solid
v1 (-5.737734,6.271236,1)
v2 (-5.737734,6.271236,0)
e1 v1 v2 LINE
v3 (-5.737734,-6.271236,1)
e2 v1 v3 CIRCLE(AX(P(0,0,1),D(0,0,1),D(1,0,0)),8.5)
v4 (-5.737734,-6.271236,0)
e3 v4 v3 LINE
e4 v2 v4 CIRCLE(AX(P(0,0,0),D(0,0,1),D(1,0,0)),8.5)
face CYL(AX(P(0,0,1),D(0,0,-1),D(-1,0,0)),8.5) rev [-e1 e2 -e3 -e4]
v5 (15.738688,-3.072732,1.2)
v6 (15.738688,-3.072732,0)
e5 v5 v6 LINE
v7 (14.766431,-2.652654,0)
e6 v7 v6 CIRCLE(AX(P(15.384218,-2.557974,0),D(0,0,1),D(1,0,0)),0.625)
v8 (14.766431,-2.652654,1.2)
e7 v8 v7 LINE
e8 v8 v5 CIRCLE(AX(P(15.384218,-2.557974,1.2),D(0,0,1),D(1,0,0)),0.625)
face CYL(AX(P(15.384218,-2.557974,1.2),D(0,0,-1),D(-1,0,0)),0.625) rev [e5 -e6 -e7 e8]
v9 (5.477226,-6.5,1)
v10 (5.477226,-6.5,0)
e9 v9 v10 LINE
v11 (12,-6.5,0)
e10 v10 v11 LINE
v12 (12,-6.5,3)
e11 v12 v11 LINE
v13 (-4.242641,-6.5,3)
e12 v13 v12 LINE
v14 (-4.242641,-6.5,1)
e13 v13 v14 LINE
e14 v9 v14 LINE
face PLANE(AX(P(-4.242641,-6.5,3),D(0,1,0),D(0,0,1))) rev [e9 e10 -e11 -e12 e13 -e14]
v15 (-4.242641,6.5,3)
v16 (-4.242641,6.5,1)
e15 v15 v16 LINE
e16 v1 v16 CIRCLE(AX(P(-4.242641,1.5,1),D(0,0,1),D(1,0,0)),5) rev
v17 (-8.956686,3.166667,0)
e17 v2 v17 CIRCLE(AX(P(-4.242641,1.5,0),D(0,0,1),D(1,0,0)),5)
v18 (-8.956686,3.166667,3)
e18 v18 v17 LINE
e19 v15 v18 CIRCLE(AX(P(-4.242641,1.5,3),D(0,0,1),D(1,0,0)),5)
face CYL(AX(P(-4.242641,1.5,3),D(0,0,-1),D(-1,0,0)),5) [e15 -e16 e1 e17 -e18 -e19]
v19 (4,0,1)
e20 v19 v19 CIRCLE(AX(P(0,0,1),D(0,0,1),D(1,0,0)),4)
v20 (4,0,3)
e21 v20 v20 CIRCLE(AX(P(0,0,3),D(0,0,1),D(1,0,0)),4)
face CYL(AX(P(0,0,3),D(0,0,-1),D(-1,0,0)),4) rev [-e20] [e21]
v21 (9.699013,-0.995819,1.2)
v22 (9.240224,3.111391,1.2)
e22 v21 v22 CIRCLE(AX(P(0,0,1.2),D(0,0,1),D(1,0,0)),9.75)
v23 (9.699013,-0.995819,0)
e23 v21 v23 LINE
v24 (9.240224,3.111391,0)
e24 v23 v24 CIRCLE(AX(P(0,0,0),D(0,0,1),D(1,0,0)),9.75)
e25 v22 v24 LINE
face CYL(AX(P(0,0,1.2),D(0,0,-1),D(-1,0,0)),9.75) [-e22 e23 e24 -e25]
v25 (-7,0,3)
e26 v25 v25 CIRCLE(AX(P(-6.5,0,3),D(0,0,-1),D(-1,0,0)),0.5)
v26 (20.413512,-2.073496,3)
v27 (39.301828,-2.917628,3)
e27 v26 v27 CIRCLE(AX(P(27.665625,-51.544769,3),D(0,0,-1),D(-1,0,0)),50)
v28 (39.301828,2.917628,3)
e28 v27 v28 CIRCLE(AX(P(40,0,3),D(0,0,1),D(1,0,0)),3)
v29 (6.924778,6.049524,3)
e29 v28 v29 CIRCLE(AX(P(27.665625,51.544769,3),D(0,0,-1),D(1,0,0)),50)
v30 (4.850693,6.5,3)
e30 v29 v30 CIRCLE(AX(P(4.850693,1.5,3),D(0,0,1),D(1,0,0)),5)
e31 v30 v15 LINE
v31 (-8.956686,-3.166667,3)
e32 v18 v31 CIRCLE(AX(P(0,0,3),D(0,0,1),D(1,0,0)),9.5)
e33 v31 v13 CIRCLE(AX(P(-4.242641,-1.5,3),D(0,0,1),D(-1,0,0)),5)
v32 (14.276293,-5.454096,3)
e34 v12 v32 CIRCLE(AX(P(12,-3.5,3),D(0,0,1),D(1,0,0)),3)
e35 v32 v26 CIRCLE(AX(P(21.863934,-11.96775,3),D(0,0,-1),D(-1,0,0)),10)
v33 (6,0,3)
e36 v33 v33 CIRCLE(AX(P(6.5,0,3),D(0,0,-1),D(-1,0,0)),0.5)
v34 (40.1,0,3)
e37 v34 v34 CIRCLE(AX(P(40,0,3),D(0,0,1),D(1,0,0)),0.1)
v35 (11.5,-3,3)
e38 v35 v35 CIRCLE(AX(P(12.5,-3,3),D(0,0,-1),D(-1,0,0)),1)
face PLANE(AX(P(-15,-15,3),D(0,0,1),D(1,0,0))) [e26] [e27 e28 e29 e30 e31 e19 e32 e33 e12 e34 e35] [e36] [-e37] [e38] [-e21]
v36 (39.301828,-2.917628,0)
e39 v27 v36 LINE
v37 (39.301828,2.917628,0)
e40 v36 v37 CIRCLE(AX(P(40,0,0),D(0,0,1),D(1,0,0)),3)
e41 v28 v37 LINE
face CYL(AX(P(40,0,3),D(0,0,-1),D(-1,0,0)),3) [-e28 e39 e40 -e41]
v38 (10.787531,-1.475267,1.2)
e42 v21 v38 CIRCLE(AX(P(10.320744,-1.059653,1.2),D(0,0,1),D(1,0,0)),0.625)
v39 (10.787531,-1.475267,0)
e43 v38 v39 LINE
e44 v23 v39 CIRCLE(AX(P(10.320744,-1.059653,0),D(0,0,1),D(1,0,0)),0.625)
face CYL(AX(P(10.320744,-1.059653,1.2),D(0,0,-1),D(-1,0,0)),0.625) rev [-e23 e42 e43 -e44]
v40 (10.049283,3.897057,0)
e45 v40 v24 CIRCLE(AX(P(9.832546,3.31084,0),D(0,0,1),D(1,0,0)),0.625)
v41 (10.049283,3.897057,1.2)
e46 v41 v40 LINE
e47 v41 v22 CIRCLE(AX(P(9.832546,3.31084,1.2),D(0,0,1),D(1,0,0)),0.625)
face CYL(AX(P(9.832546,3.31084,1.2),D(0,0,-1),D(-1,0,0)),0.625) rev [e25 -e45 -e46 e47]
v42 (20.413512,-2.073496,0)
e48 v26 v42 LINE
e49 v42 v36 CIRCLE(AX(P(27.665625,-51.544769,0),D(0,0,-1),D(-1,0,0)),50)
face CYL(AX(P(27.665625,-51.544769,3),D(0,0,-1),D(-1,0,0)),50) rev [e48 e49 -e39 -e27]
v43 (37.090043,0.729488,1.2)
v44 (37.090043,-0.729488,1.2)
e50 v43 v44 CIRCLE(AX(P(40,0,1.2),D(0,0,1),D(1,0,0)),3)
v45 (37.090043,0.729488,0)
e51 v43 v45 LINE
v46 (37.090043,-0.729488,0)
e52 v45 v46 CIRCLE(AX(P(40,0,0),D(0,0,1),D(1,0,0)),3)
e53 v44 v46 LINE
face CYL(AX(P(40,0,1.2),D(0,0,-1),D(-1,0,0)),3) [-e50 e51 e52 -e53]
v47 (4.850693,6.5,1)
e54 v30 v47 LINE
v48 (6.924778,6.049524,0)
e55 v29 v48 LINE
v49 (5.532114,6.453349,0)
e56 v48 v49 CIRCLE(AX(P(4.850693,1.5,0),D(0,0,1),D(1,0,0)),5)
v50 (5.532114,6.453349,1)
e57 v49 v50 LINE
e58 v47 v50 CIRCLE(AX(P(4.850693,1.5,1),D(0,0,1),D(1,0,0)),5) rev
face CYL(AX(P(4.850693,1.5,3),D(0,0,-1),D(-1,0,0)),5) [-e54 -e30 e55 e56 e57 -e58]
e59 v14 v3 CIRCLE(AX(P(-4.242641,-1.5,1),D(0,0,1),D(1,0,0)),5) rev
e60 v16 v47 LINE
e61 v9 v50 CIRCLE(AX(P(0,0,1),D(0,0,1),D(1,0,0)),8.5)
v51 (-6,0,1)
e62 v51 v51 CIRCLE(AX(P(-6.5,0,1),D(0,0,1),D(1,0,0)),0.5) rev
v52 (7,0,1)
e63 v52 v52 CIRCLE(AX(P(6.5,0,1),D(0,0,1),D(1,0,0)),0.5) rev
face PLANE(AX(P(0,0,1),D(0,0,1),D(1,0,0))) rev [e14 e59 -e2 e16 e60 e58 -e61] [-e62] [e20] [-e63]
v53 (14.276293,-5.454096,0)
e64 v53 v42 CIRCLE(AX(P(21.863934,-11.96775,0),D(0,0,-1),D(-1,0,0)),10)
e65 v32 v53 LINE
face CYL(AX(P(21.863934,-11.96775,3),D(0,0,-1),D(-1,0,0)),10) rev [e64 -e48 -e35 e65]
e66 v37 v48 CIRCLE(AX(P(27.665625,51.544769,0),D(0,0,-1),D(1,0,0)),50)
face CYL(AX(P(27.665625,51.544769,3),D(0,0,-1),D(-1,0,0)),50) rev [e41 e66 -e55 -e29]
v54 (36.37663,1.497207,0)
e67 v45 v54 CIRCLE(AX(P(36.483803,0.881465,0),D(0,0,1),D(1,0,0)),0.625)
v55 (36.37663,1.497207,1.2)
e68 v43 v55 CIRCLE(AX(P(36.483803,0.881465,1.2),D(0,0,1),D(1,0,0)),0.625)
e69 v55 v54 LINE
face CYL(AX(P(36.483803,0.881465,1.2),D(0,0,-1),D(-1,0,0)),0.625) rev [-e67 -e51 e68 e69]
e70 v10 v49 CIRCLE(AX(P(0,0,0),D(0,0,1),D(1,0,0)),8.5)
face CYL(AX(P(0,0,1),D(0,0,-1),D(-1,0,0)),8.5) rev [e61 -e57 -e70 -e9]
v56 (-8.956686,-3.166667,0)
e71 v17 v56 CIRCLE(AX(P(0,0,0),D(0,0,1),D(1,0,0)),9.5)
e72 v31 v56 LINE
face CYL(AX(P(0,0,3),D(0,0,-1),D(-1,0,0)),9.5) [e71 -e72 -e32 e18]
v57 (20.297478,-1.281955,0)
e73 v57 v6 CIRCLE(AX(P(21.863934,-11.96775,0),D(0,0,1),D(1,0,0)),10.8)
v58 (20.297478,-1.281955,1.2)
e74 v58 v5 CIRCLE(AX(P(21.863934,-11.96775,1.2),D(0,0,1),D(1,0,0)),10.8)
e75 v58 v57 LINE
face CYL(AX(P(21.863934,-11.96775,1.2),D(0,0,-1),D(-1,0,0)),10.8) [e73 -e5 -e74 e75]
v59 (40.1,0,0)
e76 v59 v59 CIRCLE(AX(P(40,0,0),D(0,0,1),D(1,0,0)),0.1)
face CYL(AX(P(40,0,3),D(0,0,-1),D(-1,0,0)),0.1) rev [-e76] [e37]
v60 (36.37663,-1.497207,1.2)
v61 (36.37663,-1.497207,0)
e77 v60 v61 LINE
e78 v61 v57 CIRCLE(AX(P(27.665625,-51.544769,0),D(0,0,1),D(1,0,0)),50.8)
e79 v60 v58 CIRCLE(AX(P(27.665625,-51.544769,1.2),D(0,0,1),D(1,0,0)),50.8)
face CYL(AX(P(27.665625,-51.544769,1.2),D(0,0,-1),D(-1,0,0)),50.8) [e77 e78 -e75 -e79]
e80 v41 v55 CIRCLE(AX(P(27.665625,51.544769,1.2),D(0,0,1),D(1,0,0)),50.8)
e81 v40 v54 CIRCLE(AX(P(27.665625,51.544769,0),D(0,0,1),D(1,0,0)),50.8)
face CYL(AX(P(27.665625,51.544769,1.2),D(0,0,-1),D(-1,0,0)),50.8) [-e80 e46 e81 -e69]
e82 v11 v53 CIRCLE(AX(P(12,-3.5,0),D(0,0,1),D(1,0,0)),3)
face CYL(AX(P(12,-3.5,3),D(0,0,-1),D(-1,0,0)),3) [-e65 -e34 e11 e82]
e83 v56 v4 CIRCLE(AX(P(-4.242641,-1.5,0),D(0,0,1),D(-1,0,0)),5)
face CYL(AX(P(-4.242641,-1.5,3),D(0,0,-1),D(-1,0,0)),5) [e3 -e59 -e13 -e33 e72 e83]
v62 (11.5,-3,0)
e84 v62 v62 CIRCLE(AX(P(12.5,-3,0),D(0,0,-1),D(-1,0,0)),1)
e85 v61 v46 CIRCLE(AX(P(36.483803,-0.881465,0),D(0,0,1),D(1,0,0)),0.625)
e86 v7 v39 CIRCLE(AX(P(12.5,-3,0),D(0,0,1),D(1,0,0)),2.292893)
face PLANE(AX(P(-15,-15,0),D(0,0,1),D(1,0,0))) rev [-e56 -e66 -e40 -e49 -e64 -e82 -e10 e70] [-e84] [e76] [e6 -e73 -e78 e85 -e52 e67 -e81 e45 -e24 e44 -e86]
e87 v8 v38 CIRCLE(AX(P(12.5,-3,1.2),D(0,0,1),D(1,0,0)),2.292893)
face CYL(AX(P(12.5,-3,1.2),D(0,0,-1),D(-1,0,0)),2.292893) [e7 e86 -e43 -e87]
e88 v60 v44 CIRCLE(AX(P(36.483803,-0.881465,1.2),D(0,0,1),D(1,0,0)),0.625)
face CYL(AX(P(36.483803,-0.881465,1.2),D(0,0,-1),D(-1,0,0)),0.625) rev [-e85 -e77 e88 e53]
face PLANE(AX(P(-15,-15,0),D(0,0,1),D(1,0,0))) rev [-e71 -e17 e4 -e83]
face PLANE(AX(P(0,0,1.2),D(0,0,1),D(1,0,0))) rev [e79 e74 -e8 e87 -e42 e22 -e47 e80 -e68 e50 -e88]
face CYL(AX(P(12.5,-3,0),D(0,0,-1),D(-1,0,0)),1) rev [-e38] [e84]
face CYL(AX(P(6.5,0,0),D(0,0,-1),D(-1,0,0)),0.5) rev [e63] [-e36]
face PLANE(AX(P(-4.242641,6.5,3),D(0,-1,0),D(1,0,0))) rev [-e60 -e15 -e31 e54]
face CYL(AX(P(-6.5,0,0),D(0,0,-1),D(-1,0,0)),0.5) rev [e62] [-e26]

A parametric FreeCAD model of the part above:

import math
import FreeCAD as App
import Part
import Sketcher
from FreeCAD import Vector


def add_polygon(sketch, points):
    """Adds a closed chain of lines whose ends are joined by coincident constraints."""
    first, n = sketch.GeometryCount, len(points)
    for a, b in zip(points, points[1:] + points[:1]):
        sketch.addGeometry(Part.LineSegment(App.Vector(*a, 0), App.Vector(*b, 0)), False)
    for i in range(n):
        sketch.addConstraint(Sketcher.Constraint("Coincident", first + i, 2, first + (i + 1) % n, 1))

doc = App.newDocument("Part")
params = doc.addObject("Spreadsheet::Sheet", "Params")
for row, (alias, value) in enumerate([
    ("sketch1_diameter", "8 mm"),
    ("sketch1_diameter2", "0.2 mm"),
    ("sketch1_width", "70 mm"),
    ("sketch1_height", "30 mm"),
    ("pad1_length", "3 mm"),
    ("sketch2_diameter", "1 mm"),
    ("hole_diameter", "1 mm"),
    ("sketch3_diameter", "2 mm"),
    ("hole2_diameter", "2 mm"),
    ("sketch4_diameter", "17 mm"),
    ("pocket1_length", "1 mm"),
    ("sketch5_radius", "5 mm"),
    ("sketch5_radius2", "50 mm"),
    ("sketch5_radius3", "3 mm"),
    ("sketch5_radius4", "10 mm"),
    ("sketch5_radius5", "9.5 mm"),
    ("sketch6_radius", "3 mm"),
    ("sketch6_radius2", "10.8 mm"),
    ("sketch6_radius3", "50.8 mm"),
    ("sketch6_radius4", "50.8 mm"),
    ("sketch6_radius5", "9.75 mm"),
    ("pocket3_length", "1.2 mm"),
], start=1):
    params.set(f"A{row}", alias)
    params.set(f"B{row}", "=" + value)
    params.setAlias(f"B{row}", alias)

body = doc.addObject("PartDesign::Body", "Body")

# Sketch on XY plane
sketch1 = body.newObject("Sketcher::SketchObject", "Sketch")
sketch1.AttachmentSupport = (doc.getObject("XY_Plane"), [""])
sketch1.MapMode = "FlatFace"
add_polygon(sketch1, [(-15, 15), (-15, -15), (55, -15), (55, 15)])  # lines 0-3
sketch1.addGeometry(Part.Circle(Vector(0, 0, 0), Vector(0, 0, 1), 4), False)  # 4
sketch1.addGeometry(Part.Circle(Vector(40, 0, 0), Vector(0, 0, 1), 0.1), False)  # 5
sketch1.addConstraint([
    Sketcher.Constraint("Vertical", 0),
    Sketcher.Constraint("Horizontal", 1),
    Sketcher.Constraint("Vertical", 2),
    Sketcher.Constraint("Horizontal", 3),
    Sketcher.Constraint("Coincident", 4, 3, -1, 1),
    Sketcher.Constraint("PointOnObject", 5, 3, -1),
    Sketcher.Constraint("Diameter", 4, 8.0),
    Sketcher.Constraint("Diameter", 5, 0.2),
    Sketcher.Constraint("DistanceX", 1, 1, 1, 2, 70.0),
    Sketcher.Constraint("DistanceY", 0, 2, 0, 1, 30.0),
    Sketcher.Constraint("DistanceX", -1, 1, 5, 3, 40.0),
    Sketcher.Constraint("DistanceX", 0, 2, -1, 1, 15.0),
    Sketcher.Constraint("DistanceY", 0, 2, -1, 1, 15.0),
])
sketch1.setExpression("Constraints[10]", "Params.sketch1_diameter")
sketch1.setExpression("Constraints[11]", "Params.sketch1_diameter2")
sketch1.setExpression("Constraints[12]", "Params.sketch1_width")
sketch1.setExpression("Constraints[13]", "Params.sketch1_height")
pad1 = body.newObject("PartDesign::Pad", "Pad")
pad1.Profile = sketch1
pad1.setExpression("Length", "Params.pad1_length")

# Sketch on XY plane
sketch2 = body.newObject("Sketcher::SketchObject", "Sketch001")
sketch2.AttachmentSupport = (doc.getObject("XY_Plane"), [""])
sketch2.MapMode = "FlatFace"
sketch2.addGeometry([
    Part.Circle(Vector(-6.5, 0, 0), Vector(0, 0, 1), 0.5),
    Part.Circle(Vector(6.5, 0, 0), Vector(0, 0, 1), 0.5),
], False)
sketch2.addConstraint([
    Sketcher.Constraint("Equal", 0, 1),
    Sketcher.Constraint("Symmetric", 0, 3, 1, 3, -1, 1),
    Sketcher.Constraint("PointOnObject", 0, 3, -1),
    Sketcher.Constraint("Diameter", 0, 1.0),
    Sketcher.Constraint("DistanceX", 0, 3, 1, 3, 13.0),
])
sketch2.setExpression("Constraints[3]", "Params.sketch2_diameter")
doc.recompute()
hole = body.newObject("PartDesign::Hole", "Hole")
hole.Profile = sketch2
hole.ThreadType = "None"
hole.setExpression("Diameter", "Params.hole_diameter")
hole.DepthType = "ThroughAll"
hole.Reversed = True

# Sketch on XY plane
sketch3 = body.newObject("Sketcher::SketchObject", "Sketch002")
sketch3.AttachmentSupport = (doc.getObject("XY_Plane"), [""])
sketch3.MapMode = "FlatFace"
sketch3.addGeometry(Part.Circle(Vector(12.5, -3, 0), Vector(0, 0, 1), 1), False)
sketch3.addConstraint([
    Sketcher.Constraint("Diameter", 0, 2.0),
    Sketcher.Constraint("DistanceY", 0, 3, -1, 1, 3.0),
    Sketcher.Constraint("DistanceX", -1, 1, 0, 3, 12.5),
])
sketch3.setExpression("Constraints[0]", "Params.sketch3_diameter")
doc.recompute()
hole2 = body.newObject("PartDesign::Hole", "Hole001")
hole2.Profile = sketch3
hole2.ThreadType = "None"
hole2.setExpression("Diameter", "Params.hole2_diameter")
hole2.DepthType = "ThroughAll"
hole2.Reversed = True

# Sketch on XY plane
sketch4 = body.newObject("Sketcher::SketchObject", "Sketch003")
sketch4.AttachmentSupport = (doc.getObject("XY_Plane"), [""])
sketch4.MapMode = "FlatFace"
sketch4.addGeometry(Part.Circle(Vector(0, 0, 0), Vector(0, 0, 1), 8), False)
sketch4.addConstraint([
    Sketcher.Constraint("Coincident", 0, 3, -1, 1),
    Sketcher.Constraint("Diameter", 0, 17.0),
])
sketch4.setExpression("Constraints[1]", "Params.sketch4_diameter")
pocket1 = body.newObject("PartDesign::Pocket", "Pocket")
pocket1.Profile = sketch4
pocket1.setExpression("Length", "Params.pocket1_length")
pocket1.Reversed = True

# Sketch on XY plane
sketch5 = body.newObject("Sketcher::SketchObject", "Sketch004")
sketch5.AttachmentSupport = (doc.getObject("XY_Plane"), [""])
sketch5.MapMode = "FlatFace"
add_polygon(sketch5, [(-23.6, 23.6), (-23.6, -23.6), (63.6, -23.6), (63.6, 23.6)])  # lines 0-3
sketch5.addGeometry(Part.ArcOfCircle(Part.Circle(Vector(-4.2, 1.5, 0), Vector(0, 0, 1), 5), math.radians(90), math.radians(161)), False)  # 4
sketch5.addGeometry(Part.LineSegment(Vector(-4.2, 6.5, 0), Vector(4.9, 6.5, 0)), False)  # 5
sketch5.addGeometry(Part.ArcOfCircle(Part.Circle(Vector(4.9, 1.5, 0), Vector(0, 0, 1), 5), math.radians(65), math.radians(90)), False)  # 6
sketch5.addGeometry(Part.ArcOfCircle(Part.Circle(Vector(27.7, 51.5, 0), Vector(0, 0, 1), 50), math.radians(-115), math.radians(-77)), False)  # 7
sketch5.addGeometry(Part.ArcOfCircle(Part.Circle(Vector(40, 0, 0), Vector(0, 0, 1), 3), math.radians(-103), math.radians(103)), False)  # 8
sketch5.addGeometry(Part.ArcOfCircle(Part.Circle(Vector(27.7, -51.5, 0), Vector(0, 0, 1), 50), math.radians(77), math.radians(98)), False)  # 9
sketch5.addGeometry(Part.ArcOfCircle(Part.Circle(Vector(21.9, -12, 0), Vector(0, 0, 1), 10), math.radians(98), math.radians(139)), False)  # 10
sketch5.addGeometry(Part.ArcOfCircle(Part.Circle(Vector(12, -3.5, 0), Vector(0, 0, 1), 3), math.radians(-90), math.radians(-41)), False)  # 11
sketch5.addGeometry(Part.LineSegment(Vector(12, -6.5, 0), Vector(-4.2, -6.5, 0)), False)  # 12
sketch5.addGeometry(Part.ArcOfCircle(Part.Circle(Vector(-4.2, -1.5, 0), Vector(0, 0, 1), 5), math.radians(-161), math.radians(-90)), False)  # 13
sketch5.addGeometry(Part.ArcOfCircle(Part.Circle(Vector(0, 0, 0), Vector(0, 0, 1), 9.5), math.radians(161), math.radians(199)), False)  # 14
sketch5.addConstraint([
    Sketcher.Constraint("Tangent", 4, 1, 5, 1),
    Sketcher.Constraint("Tangent", 5, 2, 6, 2),
    Sketcher.Constraint("Tangent", 6, 1, 7, 1),
    Sketcher.Constraint("Tangent", 7, 2, 8, 2),
    Sketcher.Constraint("Tangent", 8, 1, 9, 1),
    Sketcher.Constraint("Tangent", 9, 2, 10, 1),
    Sketcher.Constraint("Tangent", 10, 2, 11, 2),
    Sketcher.Constraint("Tangent", 11, 1, 12, 1),
    Sketcher.Constraint("Tangent", 12, 2, 13, 2),
    Sketcher.Constraint("Tangent", 13, 1, 14, 2),
    Sketcher.Constraint("Tangent", 14, 1, 4, 2),
    Sketcher.Constraint("Vertical", 0),
    Sketcher.Constraint("Horizontal", 1),
    Sketcher.Constraint("Vertical", 2),
    Sketcher.Constraint("Horizontal", 3),
    Sketcher.Constraint("Horizontal", 5),
    Sketcher.Constraint("Horizontal", 12),
    Sketcher.Constraint("Coincident", 14, 3, -1, 1),
    Sketcher.Constraint("Equal", 4, 6),
    Sketcher.Constraint("Equal", 7, 9),
    Sketcher.Constraint("Equal", 8, 11),
    Sketcher.Constraint("Equal", 6, 13),
    Sketcher.Constraint("Symmetric", 7, 3, 9, 3, -1),
    Sketcher.Constraint("Vertical", 4, 3, 13, 3),
    Sketcher.Constraint("Radius", 4, 5.0),
    Sketcher.Constraint("Radius", 7, 50.0),
    Sketcher.Constraint("Radius", 8, 3.0),
    Sketcher.Constraint("Radius", 10, 10.0),
    Sketcher.Constraint("Radius", 14, 9.5),
    Sketcher.Constraint("DistanceX", -1, 1, 8, 3, 40.0),
    Sketcher.Constraint("DistanceX", -1, 1, 11, 3, 12.0),
    Sketcher.Constraint("DistanceY", 11, 3, 6, 3, 5.0),
    Sketcher.Constraint("DistanceX", 1, 1, 1, 2, 87.244),
    Sketcher.Constraint("DistanceY", 0, 2, 0, 1, 47.244),
    Sketcher.Constraint("DistanceX", 0, 2, -1, 1, 23.622),
    Sketcher.Constraint("DistanceY", 0, 2, -1, 1, 23.622),
    Sketcher.Constraint("DistanceY", 10, 2, 9, 2, 3.3806),
])
sketch5.setExpression("Constraints[28]", "Params.sketch5_radius")
sketch5.setExpression("Constraints[29]", "Params.sketch5_radius2")
sketch5.setExpression("Constraints[30]", "Params.sketch5_radius3")
sketch5.setExpression("Constraints[31]", "Params.sketch5_radius4")
sketch5.setExpression("Constraints[32]", "Params.sketch5_radius5")
pocket2 = body.newObject("PartDesign::Pocket", "Pocket001")
pocket2.Profile = sketch5
pocket2.Type = "ThroughAll"
pocket2.Reversed = True

# Sketch on XY plane
sketch6 = body.newObject("Sketcher::SketchObject", "Sketch005")
sketch6.AttachmentSupport = (doc.getObject("XY_Plane"), [""])
sketch6.MapMode = "FlatFace"
sketch6.addGeometry([
    Part.ArcOfCircle(Part.Circle(Vector(0, 0, 0), Vector(0, 0, 1), 9.75), math.radians(-5.862142), math.radians(18.609537)),  # 0
    Part.ArcOfCircle(Part.Circle(Vector(10.320744, -1.059653, 0), Vector(0, 0, 1), 0.625), math.radians(174.137858), math.radians(318.319053)),  # 1
    Part.ArcOfCircle(Part.Circle(Vector(12.5, -3, 0), Vector(0, 0, 1), 2.292893), math.radians(8.71318), math.radians(138.319053)),  # 2
    Part.ArcOfCircle(Part.Circle(Vector(15.384218, -2.557974, 0), Vector(0, 0, 1), 0.625), math.radians(-171.28682), math.radians(-55.448106)),  # 3
    Part.ArcOfCircle(Part.Circle(Vector(21.863934, -11.96775, 0), Vector(0, 0, 1), 10.8), math.radians(98.339727), math.radians(124.551893)),  # 4
    Part.ArcOfCircle(Part.Circle(Vector(27.665625, -51.544769, 0), Vector(0, 0, 1), 50.8), math.radians(80.126325), math.radians(98.339727)),  # 5
    Part.ArcOfCircle(Part.Circle(Vector(36.483803, -0.881465, 0), Vector(0, 0, 1), 0.625), math.radians(-99.873675), math.radians(14.073282)),  # 6
    Part.ArcOfCircle(Part.Circle(Vector(40, 0, 0), Vector(0, 0, 1), 3), math.radians(165.926718), math.radians(194.073282)),  # 7
    Part.ArcOfCircle(Part.Circle(Vector(36.483803, 0.881465, 0), Vector(0, 0, 1), 0.625), math.radians(-14.073282), math.radians(99.873675)),  # 8
    Part.ArcOfCircle(Part.Circle(Vector(27.665625, 51.544769, 0), Vector(0, 0, 1), 50.8), math.radians(-110.290393), math.radians(-80.126325)),  # 9
    Part.ArcOfCircle(Part.Circle(Vector(9.832546, 3.31084, 0), Vector(0, 0, 1), 0.625), math.radians(69.709607), math.radians(198.609537)),  # 10
], False)
sketch6.addConstraint([
    Sketcher.Constraint("Coincident", 0, 1, 1, 1),
    Sketcher.Constraint("Coincident", 1, 2, 2, 2),
    Sketcher.Constraint("Coincident", 2, 1, 3, 1),
    Sketcher.Constraint("Coincident", 3, 2, 4, 2),
    Sketcher.Constraint("Coincident", 4, 1, 5, 2),
    Sketcher.Constraint("Coincident", 5, 1, 6, 1),
    Sketcher.Constraint("Coincident", 6, 2, 7, 2),
    Sketcher.Constraint("Coincident", 7, 1, 8, 1),
    Sketcher.Constraint("Coincident", 8, 2, 9, 2),
    Sketcher.Constraint("Coincident", 9, 1, 10, 1),
    Sketcher.Constraint("Coincident", 10, 2, 0, 2),
    Sketcher.Constraint("Coincident", 0, 3, -1, 1),
    Sketcher.Constraint("PointOnObject", 7, 3, -1),
    Sketcher.Constraint("Radius", 7, 3.0),
    Sketcher.Constraint("Radius", 4, 10.8),
    Sketcher.Constraint("Radius", 5, 50.8),
    Sketcher.Constraint("Radius", 9, 50.8),
    Sketcher.Constraint("Radius", 0, 9.75),
    Sketcher.Constraint("DistanceY", 2, 3, -1, 1, 3.0),
    Sketcher.Constraint("DistanceX", -1, 1, 7, 3, 40.0),
    Sketcher.Constraint("Radius", 1, 0.625),
    Sketcher.Constraint("Radius", 3, 0.625),
    Sketcher.Constraint("Radius", 6, 0.625),
    Sketcher.Constraint("Radius", 8, 0.625),
    Sketcher.Constraint("Radius", 10, 0.625),
    Sketcher.Constraint("DistanceX", -1, 1, 2, 3, 12.5),
    Sketcher.Constraint("Radius", 2, 2.292893),
    Sketcher.Constraint("DistanceY", 2, 1, 1, 3, 1.593),
    Sketcher.Constraint("DistanceX", 1, 2, 2, 1, 3.9789),
    Sketcher.Constraint("DistanceY", 2, 1, 4, 1, 1.370698),
    Sketcher.Constraint("DistanceX", -1, 1, 3, 3, 15.384218),
    Sketcher.Constraint("DistanceY", 4, 3, -1, 1, 11.96775),
    Sketcher.Constraint("DistanceY", 5, 3, -1, 1, 51.544769),
    Sketcher.Constraint("DistanceY", -1, 1, 9, 3, 51.544769),
    Sketcher.Constraint("DistanceY", -1, 1, 10, 3, 3.31084),
    Sketcher.Constraint("DistanceY", 0, 1, -1, 1, 0.995819),
    Sketcher.Constraint("DistanceX", -1, 1, 3, 2, 15.738688),
    Sketcher.Constraint("DistanceX", -1, 1, 5, 1, 36.37663),
    Sketcher.Constraint("DistanceY", 6, 2, -1, 1, 0.729488),
    Sketcher.Constraint("DistanceY", -1, 1, 7, 1, 0.729488),
    Sketcher.Constraint("DistanceX", -1, 1, 8, 2, 36.37663),
    Sketcher.Constraint("DistanceY", -1, 1, 10, 2, 3.111391),
    Sketcher.Constraint("DistanceX", 0, 1, 9, 1, 0.35027),
])
sketch6.setExpression("Constraints[13]", "Params.sketch6_radius")
sketch6.setExpression("Constraints[14]", "Params.sketch6_radius2")
sketch6.setExpression("Constraints[15]", "Params.sketch6_radius3")
sketch6.setExpression("Constraints[16]", "Params.sketch6_radius4")
sketch6.setExpression("Constraints[17]", "Params.sketch6_radius5")
pocket3 = body.newObject("PartDesign::Pocket", "Pocket002")
pocket3.Profile = sketch6
pocket3.setExpression("Length", "Params.pocket3_length")
pocket3.Reversed = True

doc.recompute()
